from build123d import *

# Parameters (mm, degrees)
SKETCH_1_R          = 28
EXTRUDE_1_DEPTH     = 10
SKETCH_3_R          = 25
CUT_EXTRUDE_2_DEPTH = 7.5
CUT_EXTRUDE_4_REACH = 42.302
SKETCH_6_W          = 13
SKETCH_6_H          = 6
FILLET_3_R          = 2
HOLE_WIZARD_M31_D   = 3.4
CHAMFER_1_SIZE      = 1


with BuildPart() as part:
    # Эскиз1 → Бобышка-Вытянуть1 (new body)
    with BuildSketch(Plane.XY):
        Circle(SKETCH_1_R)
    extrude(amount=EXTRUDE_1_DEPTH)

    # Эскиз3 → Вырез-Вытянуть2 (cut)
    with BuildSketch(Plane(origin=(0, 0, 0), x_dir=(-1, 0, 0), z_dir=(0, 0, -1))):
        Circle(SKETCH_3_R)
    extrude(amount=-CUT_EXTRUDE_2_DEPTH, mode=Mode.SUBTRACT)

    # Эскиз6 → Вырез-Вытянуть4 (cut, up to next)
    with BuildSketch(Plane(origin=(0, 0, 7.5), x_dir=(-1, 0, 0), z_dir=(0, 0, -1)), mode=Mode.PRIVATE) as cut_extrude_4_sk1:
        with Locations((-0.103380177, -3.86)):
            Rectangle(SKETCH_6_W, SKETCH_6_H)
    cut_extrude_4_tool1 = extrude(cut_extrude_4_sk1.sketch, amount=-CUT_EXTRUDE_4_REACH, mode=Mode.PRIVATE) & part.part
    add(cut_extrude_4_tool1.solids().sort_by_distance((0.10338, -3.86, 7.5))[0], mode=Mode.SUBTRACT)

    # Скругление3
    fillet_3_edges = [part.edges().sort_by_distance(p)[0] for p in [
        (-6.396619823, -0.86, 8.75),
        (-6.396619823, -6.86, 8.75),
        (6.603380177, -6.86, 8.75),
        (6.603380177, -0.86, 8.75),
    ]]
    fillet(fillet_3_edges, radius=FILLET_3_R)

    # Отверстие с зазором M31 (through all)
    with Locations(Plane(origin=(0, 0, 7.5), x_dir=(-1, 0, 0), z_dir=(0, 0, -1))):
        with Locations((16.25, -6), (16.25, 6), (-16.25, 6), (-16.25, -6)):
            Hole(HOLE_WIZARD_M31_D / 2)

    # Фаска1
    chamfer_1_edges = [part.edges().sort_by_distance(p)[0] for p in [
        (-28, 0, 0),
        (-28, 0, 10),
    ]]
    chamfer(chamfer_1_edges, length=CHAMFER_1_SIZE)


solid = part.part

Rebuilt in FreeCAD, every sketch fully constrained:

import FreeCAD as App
import Part
import Sketcher

V = App.Vector


def edges_at(feature, points):
    """Names of the edges that pass closest to the given points."""
    edges = feature.Shape.Edges
    near = lambda p: min(range(len(edges)), key=lambda i: edges[i].distToShape(Part.Vertex(*p))[0])
    return sorted({f"Edge{near(p) + 1}" for p in points})

doc = App.newDocument("Part")
body = doc.addObject("PartDesign::Body", "Body")

sketch1 = body.newObject("Sketcher::SketchObject", "Sketch")
sketch1.AttachmentSupport = (doc.getObject("XY_Plane"), [""])
sketch1.MapMode = "FlatFace"
sketch1.addGeometry(Part.Circle(V(0, 0, 0), V(0, 0, 1), 28), False)
sketch1.addConstraint(Sketcher.Constraint("Coincident", 0, 3, -1, 1))
sketch1.addConstraint(Sketcher.Constraint("Diameter", 0, 56.0))
pad1 = body.newObject("PartDesign::Pad", "Pad")
pad1.Profile = sketch1
pad1.Length = 10

sketch2 = body.newObject("Sketcher::SketchObject", "Sketch001")
sketch2.AttachmentSupport = (doc.getObject("XY_Plane"), [""])
sketch2.MapMode = "FlatFace"
sketch2.addGeometry(Part.Circle(V(0, 0, 0), V(0, 0, 1), 25), False)
sketch2.addConstraint(Sketcher.Constraint("Coincident", 0, 3, -1, 1))
sketch2.addConstraint(Sketcher.Constraint("Diameter", 0, 50.0))
pocket1 = body.newObject("PartDesign::Pocket", "Pocket")
pocket1.Profile = sketch2
pocket1.Length = 7.5
pocket1.Reversed = True

sketch3 = body.newObject("Sketcher::SketchObject", "Sketch002")
sketch3.AttachmentSupport = (doc.getObject("XY_Plane"), [""])
sketch3.MapMode = "FlatFace"
sketch3.AttachmentOffset = App.Placement(V(0, 0, 7.5), App.Rotation())
sketch3.addGeometry(Part.LineSegment(V(6.60338, -0.86, 0), V(6.60338, -6.86, 0)), False)
sketch3.addGeometry(Part.LineSegment(V(6.60338, -6.86, 0), V(-6.39662, -6.86, 0)), False)
sketch3.addGeometry(Part.LineSegment(V(-6.39662, -6.86, 0), V(-6.39662, -0.86, 0)), False)
sketch3.addGeometry(Part.LineSegment(V(-6.39662, -0.86, 0), V(6.60338, -0.86, 0)), False)
sketch3.addConstraint(Sketcher.Constraint("Coincident", 0, 2, 1, 1))
sketch3.addConstraint(Sketcher.Constraint("Coincident", 1, 2, 2, 1))
sketch3.addConstraint(Sketcher.Constraint("Coincident", 2, 2, 3, 1))
sketch3.addConstraint(Sketcher.Constraint("Coincident", 3, 2, 0, 1))
sketch3.addConstraint(Sketcher.Constraint("Vertical", 0))
sketch3.addConstraint(Sketcher.Constraint("Horizontal", 1))
sketch3.addConstraint(Sketcher.Constraint("Vertical", 2))
sketch3.addConstraint(Sketcher.Constraint("Horizontal", 3))
sketch3.addConstraint(Sketcher.Constraint("DistanceX", 1, 2, 1, 1, 13.0))
sketch3.addConstraint(Sketcher.Constraint("DistanceY", 0, 2, 0, 1, 6.0))
sketch3.addConstraint(Sketcher.Constraint("DistanceY", 0, 2, -1, 1, 6.86))
sketch3.addConstraint(Sketcher.Constraint("DistanceX", -1, 1, 0, 2, 6.60338))
pocket2 = body.newObject("PartDesign::Pocket", "Pocket001")
pocket2.Profile = sketch3
pocket2.Type = "UpToFirst"
pocket2.Reversed = True
doc.recompute()

fillet = body.newObject("PartDesign::Fillet", "Fillet")
fillet.Base = (pocket2, edges_at(pocket2, [
    (-6.397, -0.86, 8.75),
    (-6.397, -6.86, 8.75),
    (6.603, -6.86, 8.75),
    (6.603, -0.86, 8.75),
]))
fillet.Radius = 2

sketch4 = body.newObject("Sketcher::SketchObject", "Sketch003")
sketch4.AttachmentSupport = (doc.getObject("XY_Plane"), [""])
sketch4.MapMode = "FlatFace"
sketch4.AttachmentOffset = App.Placement(V(0, 0, 7.5), App.Rotation())
sketch4.addGeometry(Part.Circle(V(-16.25, -6, 0), V(0, 0, 1), 1.7), False)
sketch4.addGeometry(Part.Circle(V(-16.25, 6, 0), V(0, 0, 1), 1.7), False)
sketch4.addGeometry(Part.Circle(V(16.25, 6, 0), V(0, 0, 1), 1.7), False)
sketch4.addGeometry(Part.Circle(V(16.25, -6, 0), V(0, 0, 1), 1.7), False)
sketch4.addConstraint(Sketcher.Constraint("Equal", 0, 1))
sketch4.addConstraint(Sketcher.Constraint("Equal", 1, 2))
sketch4.addConstraint(Sketcher.Constraint("Equal", 2, 3))
sketch4.addConstraint(Sketcher.Constraint("Symmetric", 0, 3, 2, 3, -1, 1))
sketch4.addConstraint(Sketcher.Constraint("Symmetric", 1, 3, 3, 3, -1, 1))
sketch4.addConstraint(Sketcher.Constraint("Symmetric", 1, 3, 2, 3, -2))
sketch4.addConstraint(Sketcher.Constraint("Diameter", 0, 3.4))
sketch4.addConstraint(Sketcher.Constraint("DistanceY", 0, 3, -1, 1, 6.0))
sketch4.addConstraint(Sketcher.Constraint("DistanceX", 1, 3, 2, 3, 32.5))
doc.recompute()
hole = body.newObject("PartDesign::Hole", "Hole")
hole.Profile = sketch4
hole.ThreadType = "None"
hole.Diameter = 3.4
hole.DepthType = "ThroughAll"
hole.Reversed = True
doc.recompute()

chamfer = body.newObject("PartDesign::Chamfer", "Chamfer")
chamfer.Base = (hole, edges_at(hole, [(-28, 0, 0), (-28, 0, 10)]))
chamfer.Size = 1

doc.recompute()
